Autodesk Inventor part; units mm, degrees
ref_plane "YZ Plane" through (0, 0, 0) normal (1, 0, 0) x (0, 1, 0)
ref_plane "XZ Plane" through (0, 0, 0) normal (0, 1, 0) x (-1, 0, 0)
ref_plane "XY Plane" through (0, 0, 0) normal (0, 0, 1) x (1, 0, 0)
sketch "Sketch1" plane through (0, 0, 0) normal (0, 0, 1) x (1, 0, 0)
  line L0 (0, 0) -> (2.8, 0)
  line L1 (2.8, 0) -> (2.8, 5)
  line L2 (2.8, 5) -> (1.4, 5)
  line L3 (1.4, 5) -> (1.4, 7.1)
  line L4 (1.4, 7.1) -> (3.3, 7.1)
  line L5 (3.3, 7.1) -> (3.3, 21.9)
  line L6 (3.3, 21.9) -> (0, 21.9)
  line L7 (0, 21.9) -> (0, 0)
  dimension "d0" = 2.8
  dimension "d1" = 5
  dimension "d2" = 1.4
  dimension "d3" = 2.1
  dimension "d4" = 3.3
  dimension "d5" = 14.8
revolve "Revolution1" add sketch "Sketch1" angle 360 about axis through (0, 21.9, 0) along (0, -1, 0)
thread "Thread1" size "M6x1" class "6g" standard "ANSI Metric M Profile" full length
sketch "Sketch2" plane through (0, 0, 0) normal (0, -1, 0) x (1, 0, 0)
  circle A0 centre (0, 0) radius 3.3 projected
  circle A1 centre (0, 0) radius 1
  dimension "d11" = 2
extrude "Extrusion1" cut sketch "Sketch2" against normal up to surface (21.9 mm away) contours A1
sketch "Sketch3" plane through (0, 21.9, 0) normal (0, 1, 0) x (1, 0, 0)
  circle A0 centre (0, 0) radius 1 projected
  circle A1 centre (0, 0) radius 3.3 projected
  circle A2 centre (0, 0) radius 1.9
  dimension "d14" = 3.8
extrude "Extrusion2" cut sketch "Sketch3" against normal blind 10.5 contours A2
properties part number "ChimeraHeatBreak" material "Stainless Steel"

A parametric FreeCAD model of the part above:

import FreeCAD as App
import Part
import Sketcher
from FreeCAD import Vector


def add_polygon(sketch, points):
    """Adds a closed chain of lines whose ends are joined by coincident constraints."""
    first, n = sketch.GeometryCount, len(points)
    for a, b in zip(points, points[1:] + points[:1]):
        sketch.addGeometry(Part.LineSegment(App.Vector(*a, 0), App.Vector(*b, 0)), False)
    for i in range(n):
        sketch.addConstraint(Sketcher.Constraint("Coincident", first + i, 2, first + (i + 1) % n, 1))

doc = App.newDocument("Part")
body = doc.addObject("PartDesign::Body", "Body")

# Sketch on XY plane
sketch1 = body.newObject("Sketcher::SketchObject", "Sketch")
sketch1.AttachmentSupport = (doc.getObject("XY_Plane"), [""])
sketch1.MapMode = "FlatFace"
add_polygon(sketch1, [(0, 21.9), (0, 0), (2.8, 0), (2.8, 5), (1.4, 5), (1.4, 7.1), (3.3, 7.1), (3.3, 21.9)])  # lines 0-7
sketch1.addConstraint(Sketcher.Constraint("Vertical", 0))
sketch1.addConstraint(Sketcher.Constraint("Horizontal", 1))
sketch1.addConstraint(Sketcher.Constraint("Vertical", 2))
sketch1.addConstraint(Sketcher.Constraint("Horizontal", 3))
sketch1.addConstraint(Sketcher.Constraint("Vertical", 4))
sketch1.addConstraint(Sketcher.Constraint("Horizontal", 5))
sketch1.addConstraint(Sketcher.Constraint("Vertical", 6))
sketch1.addConstraint(Sketcher.Constraint("Horizontal", 7))
sketch1.addConstraint(Sketcher.Constraint("Coincident", 0, 2, -1, 1))
sketch1.addConstraint(Sketcher.Constraint("DistanceY", 2, 1, 2, 2, 5.0))
sketch1.addConstraint(Sketcher.Constraint("DistanceX", 1, 1, 1, 2, 2.8))
sketch1.addConstraint(Sketcher.Constraint("DistanceX", 3, 2, 3, 1, 1.4))
sketch1.addConstraint(Sketcher.Constraint("DistanceX", 7, 2, 7, 1, 3.3))
sketch1.addConstraint(Sketcher.Constraint("DistanceY", 4, 1, 4, 2, 2.1))
sketch1.addConstraint(Sketcher.Constraint("DistanceY", 6, 1, 6, 2, 14.8))
revolution = body.newObject("PartDesign::Revolution", "Revolution")
revolution.Profile = sketch1
revolution.ReferenceAxis = (sketch1, ["V_Axis"])
revolution.Angle = 360

# Sketch on XZ plane
sketch2 = body.newObject("Sketcher::SketchObject", "Sketch001")
sketch2.AttachmentSupport = (doc.getObject("XZ_Plane"), [""])
sketch2.MapMode = "FlatFace"
sketch2.addGeometry(Part.Circle(Vector(0, 0, 0), Vector(0, 0, 1), 1), False)
sketch2.addConstraint(Sketcher.Constraint("Coincident", 0, 3, -1, 1))
sketch2.addConstraint(Sketcher.Constraint("Diameter", 0, 2.0))
pocket1 = body.newObject("PartDesign::Pocket", "Pocket")
pocket1.Profile = sketch2
pocket1.Length = 21.9

# Sketch on XZ plane
sketch3 = body.newObject("Sketcher::SketchObject", "Sketch002")
sketch3.AttachmentSupport = (doc.getObject("XZ_Plane"), [""])
sketch3.MapMode = "FlatFace"
sketch3.AttachmentOffset = App.Placement(Vector(0, 0, -21.9), App.Rotation())
sketch3.addGeometry(Part.Circle(Vector(0, 0, 0), Vector(0, 0, 1), 1.9), False)
sketch3.addGeometry(Part.Circle(Vector(0, 0, 0), Vector(0, 0, 1), 1), False)
sketch3.addConstraint(Sketcher.Constraint("Coincident", 0, 3, -1, 1))
sketch3.addConstraint(Sketcher.Constraint("Coincident", 1, 3, -1, 1))
sketch3.addConstraint(Sketcher.Constraint("Diameter", 0, 3.8))
sketch3.addConstraint(Sketcher.Constraint("Diameter", 1, 2.0))
pocket2 = body.newObject("PartDesign::Pocket", "Pocket001")
pocket2.Profile = sketch3
pocket2.Length = 10.5
pocket2.Reversed = True

doc.recompute()
